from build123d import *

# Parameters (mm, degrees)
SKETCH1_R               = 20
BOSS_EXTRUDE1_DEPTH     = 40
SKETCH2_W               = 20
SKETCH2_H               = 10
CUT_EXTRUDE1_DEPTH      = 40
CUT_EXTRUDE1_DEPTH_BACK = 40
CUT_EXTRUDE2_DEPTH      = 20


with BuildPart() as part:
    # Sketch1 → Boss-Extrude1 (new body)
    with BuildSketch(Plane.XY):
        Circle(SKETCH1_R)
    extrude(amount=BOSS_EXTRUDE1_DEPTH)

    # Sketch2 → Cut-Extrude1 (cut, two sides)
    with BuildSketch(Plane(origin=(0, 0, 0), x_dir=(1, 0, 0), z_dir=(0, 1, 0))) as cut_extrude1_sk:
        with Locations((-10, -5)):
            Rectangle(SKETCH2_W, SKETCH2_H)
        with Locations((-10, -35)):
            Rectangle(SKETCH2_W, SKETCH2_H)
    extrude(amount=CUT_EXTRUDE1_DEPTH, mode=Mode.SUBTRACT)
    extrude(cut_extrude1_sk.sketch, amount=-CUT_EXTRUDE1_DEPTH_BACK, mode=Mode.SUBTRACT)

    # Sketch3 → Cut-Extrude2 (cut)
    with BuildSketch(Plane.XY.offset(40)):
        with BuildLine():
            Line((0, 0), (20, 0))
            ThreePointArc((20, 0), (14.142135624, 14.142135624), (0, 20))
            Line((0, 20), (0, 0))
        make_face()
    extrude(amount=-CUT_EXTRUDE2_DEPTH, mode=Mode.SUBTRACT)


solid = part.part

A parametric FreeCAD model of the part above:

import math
import FreeCAD as App
import Part
import Sketcher
from FreeCAD import Vector

doc = App.newDocument("Part")
body = doc.addObject("PartDesign::Body", "Body")

# Sketch on XY plane
sketch1 = body.newObject("Sketcher::SketchObject", "Sketch")
sketch1.AttachmentSupport = (doc.getObject("XY_Plane"), [""])
sketch1.MapMode = "FlatFace"
sketch1.addGeometry(Part.Circle(Vector(0, 0, 0), Vector(0, 0, 1), 20), False)
sketch1.addConstraint(Sketcher.Constraint("Coincident", 0, 3, -1, 1))
sketch1.addConstraint(Sketcher.Constraint("Diameter", 0, 40.0))
pad1 = body.newObject("PartDesign::Pad", "Pad")
pad1.Profile = sketch1
pad1.Length = 40

# Sketch on XZ plane
sketch2 = body.newObject("Sketcher::SketchObject", "Sketch001")
sketch2.AttachmentSupport = (doc.getObject("XZ_Plane"), [""])
sketch2.MapMode = "FlatFace"
sketch2.addGeometry(Part.LineSegment(Vector(-20, 0, 0), Vector(-20, 10, 0)), False)
sketch2.addGeometry(Part.LineSegment(Vector(-20, 10, 0), Vector(0, 10, 0)), False)
sketch2.addGeometry(Part.LineSegment(Vector(0, 10, 0), Vector(0, 0, 0)), False)
sketch2.addGeometry(Part.LineSegment(Vector(0, 0, 0), Vector(-20, 0, 0)), False)
sketch2.addGeometry(Part.LineSegment(Vector(-20, 30, 0), Vector(-20, 40, 0)), False)
sketch2.addGeometry(Part.LineSegment(Vector(-20, 40, 0), Vector(0, 40, 0)), False)
sketch2.addGeometry(Part.LineSegment(Vector(0, 40, 0), Vector(0, 30, 0)), False)
sketch2.addGeometry(Part.LineSegment(Vector(0, 30, 0), Vector(-20, 30, 0)), False)
sketch2.addConstraint(Sketcher.Constraint("Coincident", 0, 2, 1, 1))
sketch2.addConstraint(Sketcher.Constraint("Coincident", 1, 2, 2, 1))
sketch2.addConstraint(Sketcher.Constraint("Coincident", 2, 2, 3, 1))
sketch2.addConstraint(Sketcher.Constraint("Coincident", 3, 2, 0, 1))
sketch2.addConstraint(Sketcher.Constraint("Coincident", 4, 2, 5, 1))
sketch2.addConstraint(Sketcher.Constraint("Coincident", 5, 2, 6, 1))
sketch2.addConstraint(Sketcher.Constraint("Coincident", 6, 2, 7, 1))
sketch2.addConstraint(Sketcher.Constraint("Coincident", 7, 2, 4, 1))
sketch2.addConstraint(Sketcher.Constraint("Vertical", 0))
sketch2.addConstraint(Sketcher.Constraint("Horizontal", 1))
sketch2.addConstraint(Sketcher.Constraint("Vertical", 2))
sketch2.addConstraint(Sketcher.Constraint("Horizontal", 3))
sketch2.addConstraint(Sketcher.Constraint("Vertical", 4))
sketch2.addConstraint(Sketcher.Constraint("Horizontal", 5))
sketch2.addConstraint(Sketcher.Constraint("Vertical", 6))
sketch2.addConstraint(Sketcher.Constraint("Horizontal", 7))
sketch2.addConstraint(Sketcher.Constraint("Coincident", 2, 2, -1, 1))
sketch2.addConstraint(Sketcher.Constraint("PointOnObject", 5, 2, -2))
sketch2.addConstraint(Sketcher.Constraint("Vertical", 3, 2, 4, 2))
sketch2.addConstraint(Sketcher.Constraint("Equal", 2, 4))
sketch2.addConstraint(Sketcher.Constraint("DistanceX", 1, 1, 1, 2, 20.0))
sketch2.addConstraint(Sketcher.Constraint("DistanceY", 0, 1, 0, 2, 10.0))
sketch2.addConstraint(Sketcher.Constraint("DistanceY", -1, 1, 4, 2, 40.0))
pocket1 = body.newObject("PartDesign::Pocket", "Pocket")
pocket1.Profile = sketch2
pocket1.Type = "ThroughAll"
pocket1.Midplane = True

# Sketch on XY plane
sketch3 = body.newObject("Sketcher::SketchObject", "Sketch002")
sketch3.AttachmentSupport = (doc.getObject("XY_Plane"), [""])
sketch3.MapMode = "FlatFace"
sketch3.AttachmentOffset = App.Placement(Vector(0, 0, 40), App.Rotation())
sketch3.addGeometry(Part.LineSegment(Vector(0, 0, 0), Vector(20, 0, 0)), False)
sketch3.addGeometry(Part.ArcOfCircle(Part.Circle(Vector(0, 0, 0), Vector(0, 0, 1), 20), math.radians(0), math.radians(90)), False)
sketch3.addGeometry(Part.LineSegment(Vector(0, 20, 0), Vector(0, 0, 0)), False)
sketch3.addConstraint(Sketcher.Constraint("Coincident", 0, 2, 1, 1))
sketch3.addConstraint(Sketcher.Constraint("Coincident", 1, 2, 2, 1))
sketch3.addConstraint(Sketcher.Constraint("Coincident", 2, 2, 0, 1))
sketch3.addConstraint(Sketcher.Constraint("Horizontal", 0))
sketch3.addConstraint(Sketcher.Constraint("Vertical", 2))
sketch3.addConstraint(Sketcher.Constraint("Coincident", 1, 3, -1, 1))
sketch3.addConstraint(Sketcher.Constraint("Coincident", 2, 2, -1, 1))
sketch3.addConstraint(Sketcher.Constraint("Radius", 1, 20.0))
pocket2 = body.newObject("PartDesign::Pocket", "Pocket001")
pocket2.Profile = sketch3
pocket2.Length = 20

doc.recompute()
